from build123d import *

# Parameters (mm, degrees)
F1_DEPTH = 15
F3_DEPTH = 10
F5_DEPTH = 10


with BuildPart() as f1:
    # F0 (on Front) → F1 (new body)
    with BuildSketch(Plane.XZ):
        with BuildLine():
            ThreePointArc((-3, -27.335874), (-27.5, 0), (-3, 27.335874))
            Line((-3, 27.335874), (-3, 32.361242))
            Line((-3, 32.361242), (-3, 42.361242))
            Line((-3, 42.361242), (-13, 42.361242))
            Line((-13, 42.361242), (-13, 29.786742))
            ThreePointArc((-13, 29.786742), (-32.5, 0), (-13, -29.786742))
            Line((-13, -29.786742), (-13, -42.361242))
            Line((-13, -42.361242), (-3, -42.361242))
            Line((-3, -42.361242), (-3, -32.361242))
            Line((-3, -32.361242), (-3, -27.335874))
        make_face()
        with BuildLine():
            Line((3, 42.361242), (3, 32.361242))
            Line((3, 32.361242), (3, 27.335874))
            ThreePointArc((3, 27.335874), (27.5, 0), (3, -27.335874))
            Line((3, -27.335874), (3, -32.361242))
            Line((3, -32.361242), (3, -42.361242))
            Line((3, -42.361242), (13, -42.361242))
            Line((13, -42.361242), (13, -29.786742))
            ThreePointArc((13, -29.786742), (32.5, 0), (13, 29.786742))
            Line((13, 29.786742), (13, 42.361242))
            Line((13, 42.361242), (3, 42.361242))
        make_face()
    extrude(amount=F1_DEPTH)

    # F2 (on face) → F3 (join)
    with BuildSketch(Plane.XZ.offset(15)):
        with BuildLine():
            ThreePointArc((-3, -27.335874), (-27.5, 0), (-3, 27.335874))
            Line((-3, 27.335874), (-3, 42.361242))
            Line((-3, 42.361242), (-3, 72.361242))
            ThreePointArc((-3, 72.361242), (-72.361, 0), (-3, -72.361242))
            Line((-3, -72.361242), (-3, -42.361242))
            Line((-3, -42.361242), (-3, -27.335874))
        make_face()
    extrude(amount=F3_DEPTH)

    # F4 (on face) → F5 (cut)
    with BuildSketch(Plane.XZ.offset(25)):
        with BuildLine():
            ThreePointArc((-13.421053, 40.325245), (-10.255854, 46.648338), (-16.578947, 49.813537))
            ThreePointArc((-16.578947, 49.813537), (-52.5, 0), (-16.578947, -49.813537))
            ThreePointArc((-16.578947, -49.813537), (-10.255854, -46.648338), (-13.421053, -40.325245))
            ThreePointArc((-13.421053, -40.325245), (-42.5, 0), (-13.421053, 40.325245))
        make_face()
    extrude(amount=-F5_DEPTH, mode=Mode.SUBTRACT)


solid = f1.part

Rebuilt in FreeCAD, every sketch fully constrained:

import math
import FreeCAD as App
import Part
import Sketcher

V = App.Vector

doc = App.newDocument("Part")
body = doc.addObject("PartDesign::Body", "Body")
body.AllowCompound = True

sketch1 = body.newObject("Sketcher::SketchObject", "Sketch")
sketch1.AttachmentSupport = (doc.getObject("XZ_Plane"), [""])
sketch1.MapMode = "FlatFace"
sketch1.addGeometry([
    Part.ArcOfCircle(Part.Circle(V(0, 0, 0), V(0, 0, 1), 28), math.radians(96), math.radians(264)),
    Part.LineSegment(V(-3, 27, 0), V(-3, 42, 0)),
    Part.LineSegment(V(-3, 42, 0), V(-13, 42, 0)),
    Part.LineSegment(V(-13, 42, 0), V(-13, 30, 0)),
    Part.ArcOfCircle(Part.Circle(V(0, 0, 0), V(0, 0, 1), 32), math.radians(114), math.radians(246)),
    Part.LineSegment(V(-13, -30, 0), V(-13, -42, 0)),
    Part.LineSegment(V(-13, -42, 0), V(-3, -42, 0)),
    Part.LineSegment(V(-3, -42, 0), V(-3, -27, 0)),
    Part.LineSegment(V(3, 42, 0), V(3, 27, 0)),
    Part.ArcOfCircle(Part.Circle(V(0, 0, 0), V(0, 0, 1), 28), math.radians(-84), math.radians(84)),
    Part.LineSegment(V(3, -27, 0), V(3, -42, 0)),
    Part.LineSegment(V(3, -42, 0), V(13, -42, 0)),
    Part.LineSegment(V(13, -42, 0), V(13, -30, 0)),
    Part.ArcOfCircle(Part.Circle(V(0, 0, 0), V(0, 0, 1), 32), math.radians(-66), math.radians(66)),
    Part.LineSegment(V(13, 30, 0), V(13, 42, 0)),
    Part.LineSegment(V(13, 42, 0), V(3, 42, 0)),
], False)
sketch1.addConstraint([
    Sketcher.Constraint("Coincident", 0, 1, 1, 1),
    Sketcher.Constraint("Coincident", 1, 2, 2, 1),
    Sketcher.Constraint("Coincident", 2, 2, 3, 1),
    Sketcher.Constraint("Coincident", 3, 2, 4, 1),
    Sketcher.Constraint("Coincident", 4, 2, 5, 1),
    Sketcher.Constraint("Coincident", 5, 2, 6, 1),
    Sketcher.Constraint("Coincident", 6, 2, 7, 1),
    Sketcher.Constraint("Coincident", 7, 2, 0, 2),
    Sketcher.Constraint("Coincident", 8, 2, 9, 2),
    Sketcher.Constraint("Coincident", 9, 1, 10, 1),
    Sketcher.Constraint("Coincident", 10, 2, 11, 1),
    Sketcher.Constraint("Coincident", 11, 2, 12, 1),
    Sketcher.Constraint("Coincident", 12, 2, 13, 1),
    Sketcher.Constraint("Coincident", 13, 2, 14, 1),
    Sketcher.Constraint("Coincident", 14, 2, 15, 1),
    Sketcher.Constraint("Coincident", 15, 2, 8, 1),
    Sketcher.Constraint("Vertical", 1),
    Sketcher.Constraint("Horizontal", 2),
    Sketcher.Constraint("Vertical", 3),
    Sketcher.Constraint("Vertical", 5),
    Sketcher.Constraint("Horizontal", 6),
    Sketcher.Constraint("Vertical", 7),
    Sketcher.Constraint("Vertical", 8),
    Sketcher.Constraint("Vertical", 10),
    Sketcher.Constraint("Horizontal", 11),
    Sketcher.Constraint("Vertical", 12),
    Sketcher.Constraint("Vertical", 14),
    Sketcher.Constraint("Horizontal", 15),
    Sketcher.Constraint("Coincident", 0, 3, -1, 1),
    Sketcher.Constraint("Coincident", 4, 3, -1, 1),
    Sketcher.Constraint("Coincident", 9, 3, -1, 1),
    Sketcher.Constraint("Coincident", 13, 3, -1, 1),
    Sketcher.Constraint("Equal", 0, 9),
    Sketcher.Constraint("Equal", 4, 13),
    Sketcher.Constraint("Symmetric", 1, 2, 10, 2, -1, 1),
    Sketcher.Constraint("Symmetric", 5, 2, 14, 2, -1, 1),
    Sketcher.Constraint("Symmetric", 6, 2, 10, 2, -2),
    Sketcher.Constraint("Horizontal", 0, 1, 8, 2),
    Sketcher.Constraint("Horizontal", 4, 2, 12, 2),
    Sketcher.Constraint("Horizontal", 3, 2, 13, 2),
    Sketcher.Constraint("Radius", 0, 27.5),
    Sketcher.Constraint("Radius", 4, 32.5),
    Sketcher.Constraint("DistanceX", 2, 2, 2, 1, 10.0),
    Sketcher.Constraint("DistanceX", 0, 1, -1, 1, 3.0),
    Sketcher.Constraint("DistanceY", 3, 2, 3, 1, 12.5745),
])
pad1 = body.newObject("PartDesign::Pad", "Pad")
pad1.Profile = sketch1
pad1.Length = 15

sketch2 = body.newObject("Sketcher::SketchObject", "Sketch001")
sketch2.AttachmentSupport = (doc.getObject("XZ_Plane"), [""])
sketch2.MapMode = "FlatFace"
sketch2.AttachmentOffset = App.Placement(V(0, 0, 15), App.Rotation())
sketch2.addGeometry([
    Part.ArcOfCircle(Part.Circle(V(0, 0, 0), V(0, 0, 1), 28), math.radians(96), math.radians(264)),
    Part.LineSegment(V(-3, 27, 0), V(-3, 72, 0)),
    Part.ArcOfCircle(Part.Circle(V(0, 0, 0), V(0, 0, 1), 72), math.radians(92), math.radians(268)),
    Part.LineSegment(V(-3, -72, 0), V(-3, -27, 0)),
], False)
sketch2.addConstraint([
    Sketcher.Constraint("Coincident", 0, 1, 1, 1),
    Sketcher.Constraint("Coincident", 1, 2, 2, 1),
    Sketcher.Constraint("Coincident", 2, 2, 3, 1),
    Sketcher.Constraint("Coincident", 3, 2, 0, 2),
    Sketcher.Constraint("Vertical", 1),
    Sketcher.Constraint("Vertical", 3),
    Sketcher.Constraint("Coincident", 0, 3, -1, 1),
    Sketcher.Constraint("Symmetric", 1, 2, 2, 2, -1),
    Sketcher.Constraint("Radius", 0, 27.5),
    Sketcher.Constraint("DistanceX", 0, 1, -1, 1, 3.0),
    Sketcher.Constraint("Radius", 2, 72.42613),
    Sketcher.Constraint("DistanceY", 1, 1, 1, 2, 45.025368),
])
pad2 = body.newObject("PartDesign::Pad", "Pad001")
pad2.Profile = sketch2
pad2.Length = 10

sketch3 = body.newObject("Sketcher::SketchObject", "Sketch002")
sketch3.AttachmentSupport = (doc.getObject("XZ_Plane"), [""])
sketch3.MapMode = "FlatFace"
sketch3.AttachmentOffset = App.Placement(V(0, 0, 25), App.Rotation())
sketch3.addGeometry([
    Part.ArcOfCircle(Part.Circle(V(-15, 45.1, 0), V(0, 0, 1), 5), math.radians(-72), math.radians(108)),
    Part.ArcOfCircle(Part.Circle(V(0, 0, 0), V(0, 0, 1), 52.5), math.radians(108), math.radians(252)),
    Part.ArcOfCircle(Part.Circle(V(-15, -45.1, 0), V(0, 0, 1), 5), math.radians(-108), math.radians(72)),
    Part.ArcOfCircle(Part.Circle(V(0, 0, 0), V(0, 0, 1), 42.5), math.radians(108), math.radians(252)),
], False)
sketch3.addConstraint([
    Sketcher.Constraint("Tangent", 0, 2, 1, 1),
    Sketcher.Constraint("Tangent", 1, 2, 2, 1),
    Sketcher.Constraint("Tangent", 2, 2, 3, 2),
    Sketcher.Constraint("Tangent", 3, 1, 0, 1),
    Sketcher.Constraint("Coincident", 1, 3, -1, 1),
    Sketcher.Constraint("Coincident", 3, 3, -1, 1),
    Sketcher.Constraint("Vertical", 0, 3, 2, 3),
    Sketcher.Constraint("Radius", 0, 4.999999),
    Sketcher.Constraint("Radius", 1, 52.499999),
    Sketcher.Constraint("DistanceX", 0, 3, -1, 1, 15.0),
])
pocket1 = body.newObject("PartDesign::Pocket", "Pocket")
pocket1.Profile = sketch3
pocket1.Length = 10

doc.recompute()
